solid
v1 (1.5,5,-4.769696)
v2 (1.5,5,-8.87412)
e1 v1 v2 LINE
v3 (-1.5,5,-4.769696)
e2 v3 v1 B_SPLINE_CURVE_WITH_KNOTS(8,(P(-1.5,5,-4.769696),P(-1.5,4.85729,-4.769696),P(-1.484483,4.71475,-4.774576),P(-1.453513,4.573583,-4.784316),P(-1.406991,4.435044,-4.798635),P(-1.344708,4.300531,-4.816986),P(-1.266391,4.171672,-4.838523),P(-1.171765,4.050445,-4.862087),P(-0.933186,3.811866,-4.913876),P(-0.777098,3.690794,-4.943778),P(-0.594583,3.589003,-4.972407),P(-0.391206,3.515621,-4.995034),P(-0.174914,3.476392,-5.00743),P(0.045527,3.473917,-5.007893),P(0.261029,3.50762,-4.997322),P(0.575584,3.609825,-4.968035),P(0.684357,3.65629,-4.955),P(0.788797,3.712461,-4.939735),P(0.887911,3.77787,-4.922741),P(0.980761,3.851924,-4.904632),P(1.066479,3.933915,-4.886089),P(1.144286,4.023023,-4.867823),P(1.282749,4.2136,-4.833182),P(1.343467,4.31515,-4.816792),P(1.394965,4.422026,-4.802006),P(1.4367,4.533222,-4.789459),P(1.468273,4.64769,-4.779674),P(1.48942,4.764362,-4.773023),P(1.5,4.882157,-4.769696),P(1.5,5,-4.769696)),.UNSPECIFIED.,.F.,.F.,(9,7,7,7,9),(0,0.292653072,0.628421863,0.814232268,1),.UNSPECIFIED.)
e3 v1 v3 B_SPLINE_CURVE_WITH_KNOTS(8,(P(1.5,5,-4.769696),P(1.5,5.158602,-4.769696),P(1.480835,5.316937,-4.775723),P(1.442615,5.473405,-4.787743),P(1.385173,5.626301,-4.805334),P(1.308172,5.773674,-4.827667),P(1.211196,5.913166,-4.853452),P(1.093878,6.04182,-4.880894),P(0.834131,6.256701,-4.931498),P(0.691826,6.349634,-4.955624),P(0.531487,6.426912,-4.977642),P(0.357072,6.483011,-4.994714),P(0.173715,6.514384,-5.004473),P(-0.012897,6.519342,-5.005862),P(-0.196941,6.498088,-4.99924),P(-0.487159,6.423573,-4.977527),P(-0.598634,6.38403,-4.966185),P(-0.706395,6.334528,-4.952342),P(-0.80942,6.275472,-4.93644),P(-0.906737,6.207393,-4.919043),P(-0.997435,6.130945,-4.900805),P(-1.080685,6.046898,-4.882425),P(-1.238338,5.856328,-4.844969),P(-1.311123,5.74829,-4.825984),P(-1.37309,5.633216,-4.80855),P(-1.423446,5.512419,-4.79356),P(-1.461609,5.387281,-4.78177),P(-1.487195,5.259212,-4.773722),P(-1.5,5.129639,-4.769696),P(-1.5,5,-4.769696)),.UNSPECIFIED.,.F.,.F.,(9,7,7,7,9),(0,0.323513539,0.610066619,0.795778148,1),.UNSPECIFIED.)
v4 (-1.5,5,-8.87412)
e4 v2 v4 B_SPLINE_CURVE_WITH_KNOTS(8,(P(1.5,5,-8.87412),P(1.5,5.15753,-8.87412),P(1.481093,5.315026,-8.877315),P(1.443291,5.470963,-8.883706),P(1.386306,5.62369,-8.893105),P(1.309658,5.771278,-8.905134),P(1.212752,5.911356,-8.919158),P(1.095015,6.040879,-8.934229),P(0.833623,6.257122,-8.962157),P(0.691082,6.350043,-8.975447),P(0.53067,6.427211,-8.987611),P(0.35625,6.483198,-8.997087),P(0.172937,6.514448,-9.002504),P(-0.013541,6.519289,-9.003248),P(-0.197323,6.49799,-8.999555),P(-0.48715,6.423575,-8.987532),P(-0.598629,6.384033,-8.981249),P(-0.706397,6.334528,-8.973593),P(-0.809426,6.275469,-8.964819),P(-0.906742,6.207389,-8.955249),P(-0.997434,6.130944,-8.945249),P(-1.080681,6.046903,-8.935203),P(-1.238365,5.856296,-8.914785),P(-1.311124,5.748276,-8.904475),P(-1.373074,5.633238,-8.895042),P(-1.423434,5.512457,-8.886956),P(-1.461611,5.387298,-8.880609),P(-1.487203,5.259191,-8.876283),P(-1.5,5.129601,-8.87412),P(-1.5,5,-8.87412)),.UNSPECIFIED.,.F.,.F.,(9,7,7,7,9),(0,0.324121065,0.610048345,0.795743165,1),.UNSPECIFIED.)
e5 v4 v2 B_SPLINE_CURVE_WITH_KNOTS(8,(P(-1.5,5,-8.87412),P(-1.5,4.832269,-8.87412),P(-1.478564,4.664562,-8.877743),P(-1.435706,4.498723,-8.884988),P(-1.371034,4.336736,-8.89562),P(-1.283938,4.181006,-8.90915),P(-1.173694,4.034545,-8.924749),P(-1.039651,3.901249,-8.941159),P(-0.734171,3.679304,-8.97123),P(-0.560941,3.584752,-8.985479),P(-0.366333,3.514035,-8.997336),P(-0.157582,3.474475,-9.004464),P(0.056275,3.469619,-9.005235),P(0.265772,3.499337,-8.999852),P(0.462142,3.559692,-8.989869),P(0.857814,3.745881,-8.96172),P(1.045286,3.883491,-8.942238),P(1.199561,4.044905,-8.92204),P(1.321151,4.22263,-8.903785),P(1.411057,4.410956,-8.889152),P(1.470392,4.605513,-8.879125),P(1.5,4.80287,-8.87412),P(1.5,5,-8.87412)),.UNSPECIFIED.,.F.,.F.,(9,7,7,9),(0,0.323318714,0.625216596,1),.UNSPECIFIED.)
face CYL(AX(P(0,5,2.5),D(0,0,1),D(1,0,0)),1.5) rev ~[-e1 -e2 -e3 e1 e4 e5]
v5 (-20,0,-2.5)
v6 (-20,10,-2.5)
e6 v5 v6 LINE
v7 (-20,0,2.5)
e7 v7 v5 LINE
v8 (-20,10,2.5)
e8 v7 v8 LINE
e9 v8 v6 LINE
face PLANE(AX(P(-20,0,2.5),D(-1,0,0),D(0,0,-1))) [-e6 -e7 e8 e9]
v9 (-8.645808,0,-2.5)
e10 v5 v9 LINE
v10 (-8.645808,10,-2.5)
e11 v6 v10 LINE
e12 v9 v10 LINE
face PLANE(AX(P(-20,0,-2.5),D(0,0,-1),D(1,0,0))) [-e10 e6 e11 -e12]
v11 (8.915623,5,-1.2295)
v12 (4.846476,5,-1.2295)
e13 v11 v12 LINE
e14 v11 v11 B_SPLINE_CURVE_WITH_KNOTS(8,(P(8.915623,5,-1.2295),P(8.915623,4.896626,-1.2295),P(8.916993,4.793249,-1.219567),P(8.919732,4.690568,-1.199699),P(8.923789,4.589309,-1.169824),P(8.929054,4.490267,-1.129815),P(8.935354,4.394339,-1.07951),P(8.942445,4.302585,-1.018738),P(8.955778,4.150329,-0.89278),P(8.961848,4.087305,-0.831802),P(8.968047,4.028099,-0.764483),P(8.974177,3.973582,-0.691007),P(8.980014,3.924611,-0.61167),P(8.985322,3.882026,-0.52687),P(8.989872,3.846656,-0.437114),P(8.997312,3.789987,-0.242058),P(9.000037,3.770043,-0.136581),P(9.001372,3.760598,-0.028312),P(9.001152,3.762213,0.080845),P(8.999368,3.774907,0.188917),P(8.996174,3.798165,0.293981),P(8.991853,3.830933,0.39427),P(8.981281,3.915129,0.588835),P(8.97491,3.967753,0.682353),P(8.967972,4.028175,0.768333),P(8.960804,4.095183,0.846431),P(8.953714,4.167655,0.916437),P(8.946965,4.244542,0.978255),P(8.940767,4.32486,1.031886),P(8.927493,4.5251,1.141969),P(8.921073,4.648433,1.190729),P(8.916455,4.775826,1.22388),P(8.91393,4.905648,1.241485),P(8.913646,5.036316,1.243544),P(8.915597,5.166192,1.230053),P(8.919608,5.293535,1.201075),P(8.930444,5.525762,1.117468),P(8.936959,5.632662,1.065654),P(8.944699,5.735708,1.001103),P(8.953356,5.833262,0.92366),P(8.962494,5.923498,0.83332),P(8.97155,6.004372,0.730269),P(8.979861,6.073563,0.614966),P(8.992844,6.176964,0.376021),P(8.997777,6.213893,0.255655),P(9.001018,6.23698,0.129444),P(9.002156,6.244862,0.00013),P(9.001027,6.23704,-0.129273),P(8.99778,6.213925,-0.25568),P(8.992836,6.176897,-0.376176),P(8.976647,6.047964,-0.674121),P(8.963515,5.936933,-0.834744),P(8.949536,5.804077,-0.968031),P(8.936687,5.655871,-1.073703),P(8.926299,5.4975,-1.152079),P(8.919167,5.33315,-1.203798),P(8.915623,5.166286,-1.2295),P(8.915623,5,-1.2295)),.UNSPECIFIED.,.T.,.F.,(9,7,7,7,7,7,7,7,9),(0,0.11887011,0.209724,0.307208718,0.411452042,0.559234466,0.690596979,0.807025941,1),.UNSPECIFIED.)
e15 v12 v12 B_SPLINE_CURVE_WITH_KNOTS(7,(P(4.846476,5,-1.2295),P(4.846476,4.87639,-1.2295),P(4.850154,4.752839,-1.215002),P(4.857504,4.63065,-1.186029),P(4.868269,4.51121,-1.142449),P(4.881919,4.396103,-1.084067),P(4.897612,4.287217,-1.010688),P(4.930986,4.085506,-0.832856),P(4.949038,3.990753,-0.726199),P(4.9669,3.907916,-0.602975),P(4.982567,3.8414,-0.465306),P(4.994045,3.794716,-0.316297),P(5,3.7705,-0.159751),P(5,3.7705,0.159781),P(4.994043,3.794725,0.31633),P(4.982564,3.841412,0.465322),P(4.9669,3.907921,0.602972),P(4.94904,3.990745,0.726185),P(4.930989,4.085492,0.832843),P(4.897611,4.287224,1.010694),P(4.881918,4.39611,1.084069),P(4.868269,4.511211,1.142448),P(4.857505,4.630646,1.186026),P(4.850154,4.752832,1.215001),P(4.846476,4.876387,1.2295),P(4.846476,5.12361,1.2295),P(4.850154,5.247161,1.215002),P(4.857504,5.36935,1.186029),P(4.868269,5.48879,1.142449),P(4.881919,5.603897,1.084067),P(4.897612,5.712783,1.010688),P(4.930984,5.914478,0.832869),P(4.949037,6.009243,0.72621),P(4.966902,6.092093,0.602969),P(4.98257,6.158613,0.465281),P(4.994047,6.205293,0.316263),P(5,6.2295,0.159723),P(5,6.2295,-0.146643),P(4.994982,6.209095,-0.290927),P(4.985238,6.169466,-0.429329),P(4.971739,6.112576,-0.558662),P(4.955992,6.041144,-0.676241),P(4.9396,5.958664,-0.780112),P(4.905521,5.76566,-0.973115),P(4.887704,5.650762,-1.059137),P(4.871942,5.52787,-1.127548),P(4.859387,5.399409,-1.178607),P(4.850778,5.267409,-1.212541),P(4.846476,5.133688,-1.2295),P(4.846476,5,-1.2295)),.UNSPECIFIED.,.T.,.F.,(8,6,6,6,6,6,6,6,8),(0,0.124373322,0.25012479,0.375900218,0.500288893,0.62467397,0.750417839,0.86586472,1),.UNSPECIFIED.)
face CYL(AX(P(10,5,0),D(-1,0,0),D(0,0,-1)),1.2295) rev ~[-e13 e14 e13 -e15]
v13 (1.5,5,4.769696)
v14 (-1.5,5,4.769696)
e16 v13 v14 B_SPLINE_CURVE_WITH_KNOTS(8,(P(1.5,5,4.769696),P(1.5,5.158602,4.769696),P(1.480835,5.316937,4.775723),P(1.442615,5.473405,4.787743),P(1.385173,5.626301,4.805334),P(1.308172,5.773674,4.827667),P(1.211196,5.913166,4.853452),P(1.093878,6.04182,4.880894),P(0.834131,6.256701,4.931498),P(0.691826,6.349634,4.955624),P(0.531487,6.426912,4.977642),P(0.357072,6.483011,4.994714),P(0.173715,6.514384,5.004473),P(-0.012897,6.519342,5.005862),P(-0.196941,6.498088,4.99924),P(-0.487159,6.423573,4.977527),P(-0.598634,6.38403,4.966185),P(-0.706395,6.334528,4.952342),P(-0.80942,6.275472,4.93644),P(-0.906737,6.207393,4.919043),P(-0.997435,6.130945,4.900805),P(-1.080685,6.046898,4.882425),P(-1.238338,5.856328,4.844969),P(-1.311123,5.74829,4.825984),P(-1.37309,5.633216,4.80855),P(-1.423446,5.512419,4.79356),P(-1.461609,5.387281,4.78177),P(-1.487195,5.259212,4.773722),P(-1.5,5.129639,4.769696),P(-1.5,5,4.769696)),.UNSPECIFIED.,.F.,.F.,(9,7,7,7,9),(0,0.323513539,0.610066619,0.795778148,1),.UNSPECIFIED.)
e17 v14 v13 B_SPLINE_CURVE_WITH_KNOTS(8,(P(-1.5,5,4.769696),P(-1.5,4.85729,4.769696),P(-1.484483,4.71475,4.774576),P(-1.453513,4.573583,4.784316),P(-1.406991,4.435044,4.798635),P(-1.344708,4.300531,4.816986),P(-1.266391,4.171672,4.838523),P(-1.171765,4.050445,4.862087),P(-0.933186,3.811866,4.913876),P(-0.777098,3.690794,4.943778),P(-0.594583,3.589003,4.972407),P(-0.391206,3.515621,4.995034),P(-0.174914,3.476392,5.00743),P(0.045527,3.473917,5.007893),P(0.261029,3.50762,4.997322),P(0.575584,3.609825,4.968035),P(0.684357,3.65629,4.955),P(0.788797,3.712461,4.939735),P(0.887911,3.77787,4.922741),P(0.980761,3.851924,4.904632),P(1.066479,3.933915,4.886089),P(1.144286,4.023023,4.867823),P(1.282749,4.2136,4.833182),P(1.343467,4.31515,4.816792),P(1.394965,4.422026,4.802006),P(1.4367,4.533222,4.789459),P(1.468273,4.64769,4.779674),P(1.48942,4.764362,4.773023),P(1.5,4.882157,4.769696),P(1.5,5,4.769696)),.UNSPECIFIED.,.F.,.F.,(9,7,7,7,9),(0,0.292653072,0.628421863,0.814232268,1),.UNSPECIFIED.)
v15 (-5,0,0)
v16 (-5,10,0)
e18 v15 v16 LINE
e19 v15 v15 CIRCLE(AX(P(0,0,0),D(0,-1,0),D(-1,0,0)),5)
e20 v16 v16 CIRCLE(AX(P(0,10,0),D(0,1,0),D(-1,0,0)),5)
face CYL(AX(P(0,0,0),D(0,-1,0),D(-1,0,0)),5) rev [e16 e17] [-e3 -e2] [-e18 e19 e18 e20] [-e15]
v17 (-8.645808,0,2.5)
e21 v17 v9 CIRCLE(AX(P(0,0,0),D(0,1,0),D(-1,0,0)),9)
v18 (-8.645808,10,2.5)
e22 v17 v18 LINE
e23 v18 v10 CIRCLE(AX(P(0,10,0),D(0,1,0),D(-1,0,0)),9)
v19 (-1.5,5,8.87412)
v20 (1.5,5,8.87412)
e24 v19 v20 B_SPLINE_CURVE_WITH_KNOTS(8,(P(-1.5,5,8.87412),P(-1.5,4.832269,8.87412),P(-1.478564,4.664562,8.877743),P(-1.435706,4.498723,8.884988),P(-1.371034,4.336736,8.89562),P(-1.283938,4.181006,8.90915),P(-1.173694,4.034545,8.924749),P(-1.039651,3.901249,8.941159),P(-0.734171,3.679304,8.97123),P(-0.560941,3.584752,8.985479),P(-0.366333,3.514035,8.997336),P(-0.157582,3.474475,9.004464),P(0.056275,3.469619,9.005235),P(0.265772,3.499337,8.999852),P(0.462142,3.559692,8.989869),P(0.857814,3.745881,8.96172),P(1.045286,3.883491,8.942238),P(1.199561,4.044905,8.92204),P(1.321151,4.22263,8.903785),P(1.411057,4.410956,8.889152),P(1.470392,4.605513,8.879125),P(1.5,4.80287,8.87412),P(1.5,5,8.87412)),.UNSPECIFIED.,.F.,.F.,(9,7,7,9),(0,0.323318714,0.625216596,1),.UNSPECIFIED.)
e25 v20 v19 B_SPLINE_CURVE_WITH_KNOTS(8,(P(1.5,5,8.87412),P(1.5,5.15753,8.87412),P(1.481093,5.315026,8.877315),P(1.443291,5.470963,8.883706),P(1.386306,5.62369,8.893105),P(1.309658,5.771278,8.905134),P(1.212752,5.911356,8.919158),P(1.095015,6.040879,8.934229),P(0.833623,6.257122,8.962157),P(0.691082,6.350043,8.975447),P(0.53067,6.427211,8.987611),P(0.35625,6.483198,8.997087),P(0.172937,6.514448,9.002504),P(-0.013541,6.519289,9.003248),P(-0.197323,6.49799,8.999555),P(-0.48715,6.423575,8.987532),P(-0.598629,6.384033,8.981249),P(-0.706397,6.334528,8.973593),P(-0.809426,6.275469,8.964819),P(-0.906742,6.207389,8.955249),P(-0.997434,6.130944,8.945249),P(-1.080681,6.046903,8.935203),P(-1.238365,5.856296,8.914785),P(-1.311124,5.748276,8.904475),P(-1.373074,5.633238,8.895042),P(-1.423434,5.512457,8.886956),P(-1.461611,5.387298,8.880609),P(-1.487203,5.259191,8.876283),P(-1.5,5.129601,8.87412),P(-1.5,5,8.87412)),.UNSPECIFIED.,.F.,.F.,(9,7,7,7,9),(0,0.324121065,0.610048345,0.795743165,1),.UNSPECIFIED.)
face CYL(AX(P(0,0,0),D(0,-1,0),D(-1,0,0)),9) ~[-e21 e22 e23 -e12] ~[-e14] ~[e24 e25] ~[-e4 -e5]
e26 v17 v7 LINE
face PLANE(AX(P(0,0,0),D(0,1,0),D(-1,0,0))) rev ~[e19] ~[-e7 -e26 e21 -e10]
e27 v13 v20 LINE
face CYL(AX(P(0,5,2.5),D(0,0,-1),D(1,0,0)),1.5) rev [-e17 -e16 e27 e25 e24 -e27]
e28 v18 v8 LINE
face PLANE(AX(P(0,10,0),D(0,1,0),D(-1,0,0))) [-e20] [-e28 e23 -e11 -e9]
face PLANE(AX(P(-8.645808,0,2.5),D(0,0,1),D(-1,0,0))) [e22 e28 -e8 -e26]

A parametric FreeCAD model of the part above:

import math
import FreeCAD as App
import Part
import Sketcher
from FreeCAD import Vector
Q = App.Units.Quantity

doc = App.newDocument("Part")
params = doc.addObject("Spreadsheet::Sheet", "Params")
for row, (alias, value) in enumerate([
    ("sketch1_diameter", "10 mm"),
    ("sketch1_radius", "9 mm"),
    ("sketch1_height", "5 mm"),
    ("pad1_length", "10 mm"),
    ("sketch2_diameter", "3 mm"),
    ("pocket1_length", "35.5 mm"),
    ("hole_diameter", "2.459 mm"),
    ("hole_depth", "8.8 mm"),
], start=1):
    params.set(f"A{row}", alias)
    params.set(f"B{row}", "=" + value)
    params.setAlias(f"B{row}", alias)

body = doc.addObject("PartDesign::Body", "Body")

sketch1 = body.newObject("Sketcher::SketchObject", "Sketch")
sketch1.AttachmentSupport = (doc.getObject("XZ_Plane"), [""])
sketch1.MapMode = "FlatFace"
sketch1.addGeometry([
    Part.ArcOfCircle(Part.Circle(Vector(0, 0, 0), Vector(0, 0, 1), 9), math.radians(-163.87238), math.radians(163.87238)),
    Part.LineSegment(Vector(-8.645808, -2.5, 0), Vector(-20, -2.5, 0)),
    Part.LineSegment(Vector(-20, -2.5, 0), Vector(-20, 2.5, 0)),
    Part.LineSegment(Vector(-20, 2.5, 0), Vector(-8.645808, 2.5, 0)),
    Part.Circle(Vector(0, 0, 0), Vector(0, 0, 1), 5),
], False)
sketch1.addConstraint([
    Sketcher.Constraint("Coincident", 0, 1, 1, 1),
    Sketcher.Constraint("Coincident", 1, 2, 2, 1),
    Sketcher.Constraint("Coincident", 2, 2, 3, 1),
    Sketcher.Constraint("Coincident", 3, 2, 0, 2),
    Sketcher.Constraint("Horizontal", 1),
    Sketcher.Constraint("Vertical", 2),
    Sketcher.Constraint("Horizontal", 3),
    Sketcher.Constraint("Coincident", 0, 3, -1, 1),
    Sketcher.Constraint("Coincident", 4, 3, -1, 1),
    Sketcher.Constraint("Vertical", 0, 1, 3, 2),
    Sketcher.Constraint("Diameter", 4, Q("10 mm")),
    Sketcher.Constraint("Radius", 0, Q("9 mm")),
    Sketcher.Constraint("DistanceY", 2, 1, 2, 2, Q("5 mm")),
    Sketcher.Constraint("DistanceX", 1, 2, -1, 1, Q("20 mm")),
])
sketch1.setExpression("Constraints[10]", "Params.sketch1_diameter")
sketch1.setExpression("Constraints[11]", "Params.sketch1_radius")
sketch1.setExpression("Constraints[12]", "Params.sketch1_height")
pad1 = body.newObject("PartDesign::Pad", "Pad")
pad1.Profile = sketch1
pad1.setExpression("Length", "Params.pad1_length")
pad1.Reversed = True

sketch2 = body.newObject("Sketcher::SketchObject", "Sketch001")
sketch2.AttachmentSupport = (doc.getObject("XY_Plane"), [""])
sketch2.MapMode = "FlatFace"
sketch2.AttachmentOffset = App.Placement(Vector(0, 0, 2.5), App.Rotation())
sketch2.addGeometry(Part.Circle(Vector(0, 5, 0), Vector(0, 0, 1), 1.5), False)
sketch2.addConstraint([
    Sketcher.Constraint("PointOnObject", 0, 3, -2),
    Sketcher.Constraint("Diameter", 0, Q("3 mm")),
    Sketcher.Constraint("DistanceY", -1, 1, 0, 3, Q("5 mm")),
])
sketch2.setExpression("Constraints[1]", "Params.sketch2_diameter")
pocket1 = body.newObject("PartDesign::Pocket", "Pocket")
pocket1.Profile = sketch2
pocket1.setExpression("Length", "Params.pocket1_length")
pocket1.Midplane = True

sketch3 = body.newObject("Sketcher::SketchObject", "Sketch002")
sketch3.AttachmentSupport = (doc.getObject("YZ_Plane"), [""])
sketch3.MapMode = "FlatFace"
sketch3.AttachmentOffset = App.Placement(Vector(0, 0, 10), App.Rotation())
sketch3.addGeometry(Part.Circle(Vector(5, 0, 0), Vector(0, 0, 1), 1.2295), False)
sketch3.addConstraint([
    Sketcher.Constraint("PointOnObject", 0, 3, -1),
    Sketcher.Constraint("Diameter", 0, Q("2.459 mm")),
    Sketcher.Constraint("DistanceX", -1, 1, 0, 3, Q("5 mm")),
])
doc.recompute()
hole = body.newObject("PartDesign::Hole", "Hole")
hole.Profile = sketch3
hole.ThreadType = "None"
hole.setExpression("Diameter", "Params.hole_diameter")
hole.DepthType = "Dimension"
hole.setExpression("Depth", "Params.hole_depth")
hole.DrillPoint = "Flat"

doc.recompute()
